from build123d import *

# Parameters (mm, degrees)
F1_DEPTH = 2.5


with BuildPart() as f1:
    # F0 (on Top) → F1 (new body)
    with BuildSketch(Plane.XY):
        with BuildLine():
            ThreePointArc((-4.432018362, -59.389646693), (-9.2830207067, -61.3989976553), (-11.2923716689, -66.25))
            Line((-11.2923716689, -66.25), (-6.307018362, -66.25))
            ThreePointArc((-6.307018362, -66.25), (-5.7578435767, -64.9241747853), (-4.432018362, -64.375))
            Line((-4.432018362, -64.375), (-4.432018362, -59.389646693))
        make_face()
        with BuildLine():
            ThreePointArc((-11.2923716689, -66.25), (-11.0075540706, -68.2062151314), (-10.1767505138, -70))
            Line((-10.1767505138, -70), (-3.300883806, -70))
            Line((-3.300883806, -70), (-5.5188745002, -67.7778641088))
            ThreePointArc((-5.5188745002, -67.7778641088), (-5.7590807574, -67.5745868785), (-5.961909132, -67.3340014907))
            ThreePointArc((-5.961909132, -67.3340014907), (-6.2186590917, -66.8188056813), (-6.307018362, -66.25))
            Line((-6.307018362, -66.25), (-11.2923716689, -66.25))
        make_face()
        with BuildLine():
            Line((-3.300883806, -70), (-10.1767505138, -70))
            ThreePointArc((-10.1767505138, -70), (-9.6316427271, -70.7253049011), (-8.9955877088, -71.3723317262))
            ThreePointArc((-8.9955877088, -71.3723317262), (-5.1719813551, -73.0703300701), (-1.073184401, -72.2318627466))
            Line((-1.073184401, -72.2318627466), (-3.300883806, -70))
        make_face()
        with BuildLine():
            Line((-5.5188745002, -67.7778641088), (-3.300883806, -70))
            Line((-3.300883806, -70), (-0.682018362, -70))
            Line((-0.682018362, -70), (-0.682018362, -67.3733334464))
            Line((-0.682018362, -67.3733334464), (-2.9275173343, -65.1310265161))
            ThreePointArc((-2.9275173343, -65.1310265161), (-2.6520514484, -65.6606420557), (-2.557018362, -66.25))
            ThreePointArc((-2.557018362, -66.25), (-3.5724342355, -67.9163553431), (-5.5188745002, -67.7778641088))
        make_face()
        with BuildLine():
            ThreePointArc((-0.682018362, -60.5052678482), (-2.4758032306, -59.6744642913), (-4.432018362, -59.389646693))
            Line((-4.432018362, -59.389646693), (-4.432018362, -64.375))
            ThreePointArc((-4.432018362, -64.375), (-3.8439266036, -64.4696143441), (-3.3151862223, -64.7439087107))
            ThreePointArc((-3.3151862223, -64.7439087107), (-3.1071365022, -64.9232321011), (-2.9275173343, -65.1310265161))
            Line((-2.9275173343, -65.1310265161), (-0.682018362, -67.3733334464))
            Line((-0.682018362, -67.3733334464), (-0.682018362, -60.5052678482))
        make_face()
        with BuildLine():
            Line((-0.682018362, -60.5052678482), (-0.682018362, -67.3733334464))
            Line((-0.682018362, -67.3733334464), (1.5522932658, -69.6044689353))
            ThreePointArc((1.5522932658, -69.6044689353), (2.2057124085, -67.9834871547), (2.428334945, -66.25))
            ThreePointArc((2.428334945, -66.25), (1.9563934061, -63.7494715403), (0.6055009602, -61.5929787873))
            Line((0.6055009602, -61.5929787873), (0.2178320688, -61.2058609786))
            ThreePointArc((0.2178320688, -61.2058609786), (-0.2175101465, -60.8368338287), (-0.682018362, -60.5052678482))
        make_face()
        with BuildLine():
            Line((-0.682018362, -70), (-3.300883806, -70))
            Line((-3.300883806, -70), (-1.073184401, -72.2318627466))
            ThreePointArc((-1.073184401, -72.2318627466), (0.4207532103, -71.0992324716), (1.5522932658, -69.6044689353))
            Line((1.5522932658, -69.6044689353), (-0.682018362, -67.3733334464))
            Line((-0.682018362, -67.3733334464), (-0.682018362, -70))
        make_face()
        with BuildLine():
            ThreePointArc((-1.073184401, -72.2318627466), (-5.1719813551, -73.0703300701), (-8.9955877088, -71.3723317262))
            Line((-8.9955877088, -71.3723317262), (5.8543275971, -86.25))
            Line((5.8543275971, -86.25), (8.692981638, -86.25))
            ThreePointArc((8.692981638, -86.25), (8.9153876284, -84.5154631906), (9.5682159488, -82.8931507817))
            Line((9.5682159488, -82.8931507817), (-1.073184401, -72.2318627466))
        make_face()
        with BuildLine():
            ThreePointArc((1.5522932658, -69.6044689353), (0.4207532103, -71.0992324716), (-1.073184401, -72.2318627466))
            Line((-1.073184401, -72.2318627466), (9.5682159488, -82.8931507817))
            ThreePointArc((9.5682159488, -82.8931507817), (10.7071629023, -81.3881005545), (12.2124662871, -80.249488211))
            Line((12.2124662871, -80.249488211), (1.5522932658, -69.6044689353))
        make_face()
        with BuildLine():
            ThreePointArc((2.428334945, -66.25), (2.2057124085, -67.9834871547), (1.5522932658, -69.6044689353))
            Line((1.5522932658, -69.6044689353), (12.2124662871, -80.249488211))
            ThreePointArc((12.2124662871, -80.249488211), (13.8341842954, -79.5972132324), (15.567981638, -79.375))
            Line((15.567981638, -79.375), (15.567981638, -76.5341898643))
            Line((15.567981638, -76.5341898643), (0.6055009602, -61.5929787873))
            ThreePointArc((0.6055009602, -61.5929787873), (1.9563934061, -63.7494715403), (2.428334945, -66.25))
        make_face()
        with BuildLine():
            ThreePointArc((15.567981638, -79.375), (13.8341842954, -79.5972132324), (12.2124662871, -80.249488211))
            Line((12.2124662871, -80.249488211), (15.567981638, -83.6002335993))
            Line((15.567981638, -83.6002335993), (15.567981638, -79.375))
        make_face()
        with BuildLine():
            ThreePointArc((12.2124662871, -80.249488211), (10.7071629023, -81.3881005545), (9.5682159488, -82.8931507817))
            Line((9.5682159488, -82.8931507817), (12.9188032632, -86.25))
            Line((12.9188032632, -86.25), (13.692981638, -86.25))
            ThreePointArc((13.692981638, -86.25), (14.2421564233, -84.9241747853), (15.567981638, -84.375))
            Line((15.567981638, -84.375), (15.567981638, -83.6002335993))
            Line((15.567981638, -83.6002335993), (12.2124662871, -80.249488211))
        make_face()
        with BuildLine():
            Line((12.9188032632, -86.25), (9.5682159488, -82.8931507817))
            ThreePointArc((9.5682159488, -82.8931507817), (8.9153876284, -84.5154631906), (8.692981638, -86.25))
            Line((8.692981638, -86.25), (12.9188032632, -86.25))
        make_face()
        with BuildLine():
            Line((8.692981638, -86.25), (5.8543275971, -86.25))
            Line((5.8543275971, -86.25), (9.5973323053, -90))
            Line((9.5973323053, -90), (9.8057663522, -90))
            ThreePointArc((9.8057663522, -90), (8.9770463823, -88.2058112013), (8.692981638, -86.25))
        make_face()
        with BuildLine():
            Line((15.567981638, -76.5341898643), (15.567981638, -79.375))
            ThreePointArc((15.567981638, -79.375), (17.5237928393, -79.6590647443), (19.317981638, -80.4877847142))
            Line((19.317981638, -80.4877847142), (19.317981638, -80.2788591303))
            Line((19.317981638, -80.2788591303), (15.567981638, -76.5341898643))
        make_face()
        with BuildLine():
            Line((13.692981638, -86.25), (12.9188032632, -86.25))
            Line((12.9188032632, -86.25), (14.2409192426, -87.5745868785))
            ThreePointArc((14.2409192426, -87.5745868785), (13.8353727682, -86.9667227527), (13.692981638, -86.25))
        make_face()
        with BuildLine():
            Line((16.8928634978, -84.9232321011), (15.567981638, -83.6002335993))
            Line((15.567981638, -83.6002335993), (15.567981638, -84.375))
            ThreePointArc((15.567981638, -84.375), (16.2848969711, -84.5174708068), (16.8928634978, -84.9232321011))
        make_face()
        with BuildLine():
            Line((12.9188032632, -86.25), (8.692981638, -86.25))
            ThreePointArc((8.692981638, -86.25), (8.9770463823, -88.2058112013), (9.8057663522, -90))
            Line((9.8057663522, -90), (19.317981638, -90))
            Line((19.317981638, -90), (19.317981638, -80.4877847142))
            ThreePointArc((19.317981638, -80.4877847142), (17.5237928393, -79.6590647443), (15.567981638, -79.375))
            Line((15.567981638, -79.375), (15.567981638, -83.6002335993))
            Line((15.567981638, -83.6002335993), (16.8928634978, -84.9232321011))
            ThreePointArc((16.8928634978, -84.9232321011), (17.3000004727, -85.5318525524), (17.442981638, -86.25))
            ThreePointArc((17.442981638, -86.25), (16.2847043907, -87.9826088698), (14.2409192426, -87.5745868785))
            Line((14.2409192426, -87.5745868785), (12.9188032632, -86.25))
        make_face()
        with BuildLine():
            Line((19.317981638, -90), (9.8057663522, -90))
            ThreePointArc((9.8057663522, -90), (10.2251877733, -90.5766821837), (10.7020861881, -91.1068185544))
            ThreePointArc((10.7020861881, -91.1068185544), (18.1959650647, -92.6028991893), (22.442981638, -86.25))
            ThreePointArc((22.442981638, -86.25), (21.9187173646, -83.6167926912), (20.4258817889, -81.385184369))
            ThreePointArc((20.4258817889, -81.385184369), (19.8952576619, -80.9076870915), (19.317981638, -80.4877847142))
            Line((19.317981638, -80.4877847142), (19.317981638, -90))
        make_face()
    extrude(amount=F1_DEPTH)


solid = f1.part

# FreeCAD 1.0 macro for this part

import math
import FreeCAD as App
import Part
import Sketcher

doc = App.newDocument("Part")
body = doc.addObject("PartDesign::Body", "Body")

sketch1 = body.newObject("Sketcher::SketchObject", "Sketch")
sketch1.AttachmentSupport = (doc.getObject("XY_Plane"), [""])
sketch1.MapMode = "FlatFace"
sketch1.addGeometry([
    Part.ArcOfCircle(Part.Circle(App.Vector(-4.43, -66.25, 0), App.Vector(0, 0, 1), 6.86), math.radians(90), math.radians(180)),
    Part.ArcOfCircle(Part.Circle(App.Vector(-4.43, -66.25, 0), App.Vector(0, 0, 1), 6.86), math.radians(180), math.radians(213)),
    Part.ArcOfCircle(Part.Circle(App.Vector(-4.43, -66.25, 0), App.Vector(0, 0, 1), 6.86), math.radians(-146.86), math.radians(-131.7)),
    Part.LineSegment(App.Vector(-9, -71.37, 0), App.Vector(5.85, -86.25, 0)),
    Part.LineSegment(App.Vector(5.85, -86.25, 0), App.Vector(9.6, -90, 0)),
    Part.LineSegment(App.Vector(9.6, -90, 0), App.Vector(9.81, -90, 0)),
    Part.ArcOfCircle(Part.Circle(App.Vector(15.57, -86.25, 0), App.Vector(0, 0, 1), 6.88), math.radians(-146.94), math.radians(-135.05)),
    Part.ArcOfCircle(Part.Circle(App.Vector(15.57, -86.25, 0), App.Vector(0, 0, 1), 6.88), math.radians(-135), math.radians(0)),
    Part.ArcOfCircle(Part.Circle(App.Vector(15.57, -86.25, 0), App.Vector(0, 0, 1), 6.88), math.radians(0), math.radians(45)),
    Part.ArcOfCircle(Part.Circle(App.Vector(15.57, -86.25, 0), App.Vector(0, 0, 1), 6.88), math.radians(45.04), math.radians(56.94)),
    Part.LineSegment(App.Vector(19.32, -80.49, 0), App.Vector(19.32, -80.28, 0)),
    Part.LineSegment(App.Vector(19.32, -80.28, 0), App.Vector(15.57, -76.53, 0)),
    Part.LineSegment(App.Vector(15.57, -76.53, 0), App.Vector(0.61, -61.59, 0)),
    Part.LineSegment(App.Vector(0.61, -61.59, 0), App.Vector(0.22, -61.21, 0)),
    Part.ArcOfCircle(Part.Circle(App.Vector(-4.43, -66.25, 0), App.Vector(0, 0, 1), 6.86), math.radians(47.33), math.radians(56.86)),
    Part.ArcOfCircle(Part.Circle(App.Vector(-4.43, -66.25, 0), App.Vector(0, 0, 1), 6.86), math.radians(57), math.radians(90)),
    Part.ArcOfCircle(Part.Circle(App.Vector(15.57, -86.25, 0), App.Vector(0, 0, 1), 1.88), math.radians(180), math.radians(225)),
    Part.ArcOfCircle(Part.Circle(App.Vector(15.57, -86.25, 0), App.Vector(0, 0, 1), 1.88), math.radians(90), math.radians(180)),
    Part.ArcOfCircle(Part.Circle(App.Vector(15.57, -86.25, 0), App.Vector(0, 0, 1), 1.88), math.radians(45), math.radians(90)),
    Part.ArcOfCircle(Part.Circle(App.Vector(15.57, -86.25, 0), App.Vector(0, 0, 1), 1.87), math.radians(0), math.radians(45)),
    Part.ArcOfCircle(Part.Circle(App.Vector(15.57, -86.25, 0), App.Vector(0, 0, 1), 1.88), math.radians(-135), math.radians(0)),
    Part.ArcOfCircle(Part.Circle(App.Vector(-4.43, -66.25, 0), App.Vector(0, 0, 1), 1.88), math.radians(0), math.radians(37)),
    Part.ArcOfCircle(Part.Circle(App.Vector(-4.43, -66.25, 0), App.Vector(0, 0, 1), 1.88), math.radians(-125), math.radians(0)),
    Part.ArcOfCircle(Part.Circle(App.Vector(-4.43, -66.25, 0), App.Vector(0, 0, 1), 1.88), math.radians(-144.68), math.radians(-125.43)),
    Part.ArcOfCircle(Part.Circle(App.Vector(-4.43, -66.25, 0), App.Vector(0, 0, 1), 1.87), math.radians(180), math.radians(215)),
    Part.ArcOfCircle(Part.Circle(App.Vector(-4.43, -66.25, 0), App.Vector(0, 0, 1), 1.88), math.radians(90), math.radians(180)),
    Part.ArcOfCircle(Part.Circle(App.Vector(-4.43, -66.25, 0), App.Vector(0, 0, 1), 1.88), math.radians(53), math.radians(90)),
    Part.ArcOfCircle(Part.Circle(App.Vector(-4.43, -66.25, 0), App.Vector(0, 0, 1), 1.88), math.radians(36.64), math.radians(53.44)),
], False)
sketch1.addConstraint([
    Sketcher.Constraint("Tangent", 0, 2, 1, 1),
    Sketcher.Constraint("Tangent", 1, 2, 2, 1),
    Sketcher.Constraint("Coincident", 2, 2, 3, 1),
    Sketcher.Constraint("Coincident", 3, 2, 4, 1),
    Sketcher.Constraint("Coincident", 4, 2, 5, 1),
    Sketcher.Constraint("Coincident", 5, 2, 6, 1),
    Sketcher.Constraint("Tangent", 6, 2, 7, 1),
    Sketcher.Constraint("Tangent", 7, 2, 8, 1),
    Sketcher.Constraint("Tangent", 8, 2, 9, 1),
    Sketcher.Constraint("Coincident", 9, 2, 10, 1),
    Sketcher.Constraint("Coincident", 10, 2, 11, 1),
    Sketcher.Constraint("Coincident", 11, 2, 12, 1),
    Sketcher.Constraint("Coincident", 12, 2, 13, 1),
    Sketcher.Constraint("Coincident", 13, 2, 14, 1),
    Sketcher.Constraint("Tangent", 14, 2, 15, 1),
    Sketcher.Constraint("Tangent", 15, 2, 0, 1),
    Sketcher.Constraint("Tangent", 16, 1, 17, 2),
    Sketcher.Constraint("Tangent", 17, 1, 18, 2),
    Sketcher.Constraint("Tangent", 18, 1, 19, 2),
    Sketcher.Constraint("Tangent", 19, 1, 20, 2),
    Sketcher.Constraint("Tangent", 20, 1, 16, 2),
    Sketcher.Constraint("Tangent", 21, 1, 22, 2),
    Sketcher.Constraint("Tangent", 22, 1, 23, 2),
    Sketcher.Constraint("Tangent", 23, 1, 24, 2),
    Sketcher.Constraint("Tangent", 24, 1, 25, 2),
    Sketcher.Constraint("Tangent", 25, 1, 26, 2),
    Sketcher.Constraint("Tangent", 26, 1, 27, 2),
    Sketcher.Constraint("Tangent", 27, 1, 21, 2),
    Sketcher.Constraint("Horizontal", 5),
    Sketcher.Constraint("Vertical", 10),
    Sketcher.Constraint("Coincident", 2, 3, 0, 3),
    Sketcher.Constraint("Coincident", 8, 3, 6, 3),
    Sketcher.Constraint("Coincident", 14, 3, 0, 3),
    Sketcher.Constraint("Coincident", 16, 3, 6, 3),
    Sketcher.Constraint("Coincident", 18, 3, 6, 3),
    Sketcher.Constraint("Coincident", 21, 3, 0, 3),
    Sketcher.Constraint("Coincident", 23, 3, 0, 3),
    Sketcher.Constraint("Coincident", 25, 3, 0, 3),
    Sketcher.Constraint("Equal", 8, 9),
    Sketcher.Constraint("Equal", 20, 21),
    Sketcher.Constraint("Parallel", 3, 4),
    Sketcher.Constraint("Parallel", 11, 12),
    Sketcher.Constraint("Parallel", 12, 13),
    Sketcher.Constraint("Horizontal", 27, 3, 0, 2),
    Sketcher.Constraint("Horizontal", 20, 3, 3, 2),
    Sketcher.Constraint("Horizontal", 3, 2, 7, 2),
    Sketcher.Constraint("Horizontal", 7, 2, 16, 1),
    Sketcher.Constraint("Horizontal", 16, 1, 19, 1),
    Sketcher.Constraint("Horizontal", 0, 2, 21, 1),
    Sketcher.Constraint("Horizontal", 21, 1, 24, 1),
    Sketcher.Constraint("Vertical", 20, 3, 11, 2),
    Sketcher.Constraint("Vertical", 27, 3, 15, 2),
    Sketcher.Constraint("Vertical", 11, 2, 17, 1),
    Sketcher.Constraint("Vertical", 15, 2, 25, 1),
    Sketcher.Constraint("DistanceY", 1, 2, -1, 1, 70.0),
    Sketcher.Constraint("DistanceY", 4, 2, -1, 1, 90.0),
    Sketcher.Constraint("Radius", 6, 6.875),
    Sketcher.Constraint("Radius", 16, 1.875),
    Sketcher.Constraint("DistanceX", 1, 3, 6, 3, 20.0),
    Sketcher.Constraint("DistanceY", 6, 3, 1, 3, 20.0),
    Sketcher.Constraint("DistanceY", 0, 3, -1, 1, 66.25),
    Sketcher.Constraint("DistanceX", 6, 3, 9, 2, 3.75),
    Sketcher.Constraint("DistanceX", 14, 3, 14, 2, 3.75),
    Sketcher.Constraint("DistanceY", 23, 1, -1, 1, 67.334001),
    Sketcher.Constraint("Radius", 0, 6.860353),
    Sketcher.Constraint("DistanceX", -1, 1, 12, 2, 0.605501),
    Sketcher.Constraint("DistanceX", 8, 2, 7, 2, 2.0171),
    Sketcher.Constraint("DistanceX", 27, 1, 21, 1, 0.370499),
    Sketcher.Constraint("Distance", 12, 21.145109),
    Sketcher.Constraint("DistanceX", 5, 1, 5, 2, 0.208434),
    Sketcher.Constraint("DistanceY", 10, 1, 10, 2, 0.208926),
    Sketcher.Constraint("DistanceX", 0, 3, -1, 1, 4.432018),
    Sketcher.Constraint("DistanceY", 2, 2, -1, 1, 71.372332),
    Sketcher.Constraint("DistanceY", 6, 2, -1, 1, 91.106819),
    Sketcher.Constraint("DistanceX", -1, 1, 20, 1, 14.240919),
    Sketcher.Constraint("DistanceY", 26, 1, -1, 1, 64.743909),
    Sketcher.Constraint("DistanceX", 17, 1, 18, 1, 1.324882),
    Sketcher.Constraint("DistanceX", 22, 1, -1, 1, 5.518874),
])
pad1 = body.newObject("PartDesign::Pad", "Pad")
pad1.Profile = sketch1
pad1.Length = 2.5

doc.recompute()
